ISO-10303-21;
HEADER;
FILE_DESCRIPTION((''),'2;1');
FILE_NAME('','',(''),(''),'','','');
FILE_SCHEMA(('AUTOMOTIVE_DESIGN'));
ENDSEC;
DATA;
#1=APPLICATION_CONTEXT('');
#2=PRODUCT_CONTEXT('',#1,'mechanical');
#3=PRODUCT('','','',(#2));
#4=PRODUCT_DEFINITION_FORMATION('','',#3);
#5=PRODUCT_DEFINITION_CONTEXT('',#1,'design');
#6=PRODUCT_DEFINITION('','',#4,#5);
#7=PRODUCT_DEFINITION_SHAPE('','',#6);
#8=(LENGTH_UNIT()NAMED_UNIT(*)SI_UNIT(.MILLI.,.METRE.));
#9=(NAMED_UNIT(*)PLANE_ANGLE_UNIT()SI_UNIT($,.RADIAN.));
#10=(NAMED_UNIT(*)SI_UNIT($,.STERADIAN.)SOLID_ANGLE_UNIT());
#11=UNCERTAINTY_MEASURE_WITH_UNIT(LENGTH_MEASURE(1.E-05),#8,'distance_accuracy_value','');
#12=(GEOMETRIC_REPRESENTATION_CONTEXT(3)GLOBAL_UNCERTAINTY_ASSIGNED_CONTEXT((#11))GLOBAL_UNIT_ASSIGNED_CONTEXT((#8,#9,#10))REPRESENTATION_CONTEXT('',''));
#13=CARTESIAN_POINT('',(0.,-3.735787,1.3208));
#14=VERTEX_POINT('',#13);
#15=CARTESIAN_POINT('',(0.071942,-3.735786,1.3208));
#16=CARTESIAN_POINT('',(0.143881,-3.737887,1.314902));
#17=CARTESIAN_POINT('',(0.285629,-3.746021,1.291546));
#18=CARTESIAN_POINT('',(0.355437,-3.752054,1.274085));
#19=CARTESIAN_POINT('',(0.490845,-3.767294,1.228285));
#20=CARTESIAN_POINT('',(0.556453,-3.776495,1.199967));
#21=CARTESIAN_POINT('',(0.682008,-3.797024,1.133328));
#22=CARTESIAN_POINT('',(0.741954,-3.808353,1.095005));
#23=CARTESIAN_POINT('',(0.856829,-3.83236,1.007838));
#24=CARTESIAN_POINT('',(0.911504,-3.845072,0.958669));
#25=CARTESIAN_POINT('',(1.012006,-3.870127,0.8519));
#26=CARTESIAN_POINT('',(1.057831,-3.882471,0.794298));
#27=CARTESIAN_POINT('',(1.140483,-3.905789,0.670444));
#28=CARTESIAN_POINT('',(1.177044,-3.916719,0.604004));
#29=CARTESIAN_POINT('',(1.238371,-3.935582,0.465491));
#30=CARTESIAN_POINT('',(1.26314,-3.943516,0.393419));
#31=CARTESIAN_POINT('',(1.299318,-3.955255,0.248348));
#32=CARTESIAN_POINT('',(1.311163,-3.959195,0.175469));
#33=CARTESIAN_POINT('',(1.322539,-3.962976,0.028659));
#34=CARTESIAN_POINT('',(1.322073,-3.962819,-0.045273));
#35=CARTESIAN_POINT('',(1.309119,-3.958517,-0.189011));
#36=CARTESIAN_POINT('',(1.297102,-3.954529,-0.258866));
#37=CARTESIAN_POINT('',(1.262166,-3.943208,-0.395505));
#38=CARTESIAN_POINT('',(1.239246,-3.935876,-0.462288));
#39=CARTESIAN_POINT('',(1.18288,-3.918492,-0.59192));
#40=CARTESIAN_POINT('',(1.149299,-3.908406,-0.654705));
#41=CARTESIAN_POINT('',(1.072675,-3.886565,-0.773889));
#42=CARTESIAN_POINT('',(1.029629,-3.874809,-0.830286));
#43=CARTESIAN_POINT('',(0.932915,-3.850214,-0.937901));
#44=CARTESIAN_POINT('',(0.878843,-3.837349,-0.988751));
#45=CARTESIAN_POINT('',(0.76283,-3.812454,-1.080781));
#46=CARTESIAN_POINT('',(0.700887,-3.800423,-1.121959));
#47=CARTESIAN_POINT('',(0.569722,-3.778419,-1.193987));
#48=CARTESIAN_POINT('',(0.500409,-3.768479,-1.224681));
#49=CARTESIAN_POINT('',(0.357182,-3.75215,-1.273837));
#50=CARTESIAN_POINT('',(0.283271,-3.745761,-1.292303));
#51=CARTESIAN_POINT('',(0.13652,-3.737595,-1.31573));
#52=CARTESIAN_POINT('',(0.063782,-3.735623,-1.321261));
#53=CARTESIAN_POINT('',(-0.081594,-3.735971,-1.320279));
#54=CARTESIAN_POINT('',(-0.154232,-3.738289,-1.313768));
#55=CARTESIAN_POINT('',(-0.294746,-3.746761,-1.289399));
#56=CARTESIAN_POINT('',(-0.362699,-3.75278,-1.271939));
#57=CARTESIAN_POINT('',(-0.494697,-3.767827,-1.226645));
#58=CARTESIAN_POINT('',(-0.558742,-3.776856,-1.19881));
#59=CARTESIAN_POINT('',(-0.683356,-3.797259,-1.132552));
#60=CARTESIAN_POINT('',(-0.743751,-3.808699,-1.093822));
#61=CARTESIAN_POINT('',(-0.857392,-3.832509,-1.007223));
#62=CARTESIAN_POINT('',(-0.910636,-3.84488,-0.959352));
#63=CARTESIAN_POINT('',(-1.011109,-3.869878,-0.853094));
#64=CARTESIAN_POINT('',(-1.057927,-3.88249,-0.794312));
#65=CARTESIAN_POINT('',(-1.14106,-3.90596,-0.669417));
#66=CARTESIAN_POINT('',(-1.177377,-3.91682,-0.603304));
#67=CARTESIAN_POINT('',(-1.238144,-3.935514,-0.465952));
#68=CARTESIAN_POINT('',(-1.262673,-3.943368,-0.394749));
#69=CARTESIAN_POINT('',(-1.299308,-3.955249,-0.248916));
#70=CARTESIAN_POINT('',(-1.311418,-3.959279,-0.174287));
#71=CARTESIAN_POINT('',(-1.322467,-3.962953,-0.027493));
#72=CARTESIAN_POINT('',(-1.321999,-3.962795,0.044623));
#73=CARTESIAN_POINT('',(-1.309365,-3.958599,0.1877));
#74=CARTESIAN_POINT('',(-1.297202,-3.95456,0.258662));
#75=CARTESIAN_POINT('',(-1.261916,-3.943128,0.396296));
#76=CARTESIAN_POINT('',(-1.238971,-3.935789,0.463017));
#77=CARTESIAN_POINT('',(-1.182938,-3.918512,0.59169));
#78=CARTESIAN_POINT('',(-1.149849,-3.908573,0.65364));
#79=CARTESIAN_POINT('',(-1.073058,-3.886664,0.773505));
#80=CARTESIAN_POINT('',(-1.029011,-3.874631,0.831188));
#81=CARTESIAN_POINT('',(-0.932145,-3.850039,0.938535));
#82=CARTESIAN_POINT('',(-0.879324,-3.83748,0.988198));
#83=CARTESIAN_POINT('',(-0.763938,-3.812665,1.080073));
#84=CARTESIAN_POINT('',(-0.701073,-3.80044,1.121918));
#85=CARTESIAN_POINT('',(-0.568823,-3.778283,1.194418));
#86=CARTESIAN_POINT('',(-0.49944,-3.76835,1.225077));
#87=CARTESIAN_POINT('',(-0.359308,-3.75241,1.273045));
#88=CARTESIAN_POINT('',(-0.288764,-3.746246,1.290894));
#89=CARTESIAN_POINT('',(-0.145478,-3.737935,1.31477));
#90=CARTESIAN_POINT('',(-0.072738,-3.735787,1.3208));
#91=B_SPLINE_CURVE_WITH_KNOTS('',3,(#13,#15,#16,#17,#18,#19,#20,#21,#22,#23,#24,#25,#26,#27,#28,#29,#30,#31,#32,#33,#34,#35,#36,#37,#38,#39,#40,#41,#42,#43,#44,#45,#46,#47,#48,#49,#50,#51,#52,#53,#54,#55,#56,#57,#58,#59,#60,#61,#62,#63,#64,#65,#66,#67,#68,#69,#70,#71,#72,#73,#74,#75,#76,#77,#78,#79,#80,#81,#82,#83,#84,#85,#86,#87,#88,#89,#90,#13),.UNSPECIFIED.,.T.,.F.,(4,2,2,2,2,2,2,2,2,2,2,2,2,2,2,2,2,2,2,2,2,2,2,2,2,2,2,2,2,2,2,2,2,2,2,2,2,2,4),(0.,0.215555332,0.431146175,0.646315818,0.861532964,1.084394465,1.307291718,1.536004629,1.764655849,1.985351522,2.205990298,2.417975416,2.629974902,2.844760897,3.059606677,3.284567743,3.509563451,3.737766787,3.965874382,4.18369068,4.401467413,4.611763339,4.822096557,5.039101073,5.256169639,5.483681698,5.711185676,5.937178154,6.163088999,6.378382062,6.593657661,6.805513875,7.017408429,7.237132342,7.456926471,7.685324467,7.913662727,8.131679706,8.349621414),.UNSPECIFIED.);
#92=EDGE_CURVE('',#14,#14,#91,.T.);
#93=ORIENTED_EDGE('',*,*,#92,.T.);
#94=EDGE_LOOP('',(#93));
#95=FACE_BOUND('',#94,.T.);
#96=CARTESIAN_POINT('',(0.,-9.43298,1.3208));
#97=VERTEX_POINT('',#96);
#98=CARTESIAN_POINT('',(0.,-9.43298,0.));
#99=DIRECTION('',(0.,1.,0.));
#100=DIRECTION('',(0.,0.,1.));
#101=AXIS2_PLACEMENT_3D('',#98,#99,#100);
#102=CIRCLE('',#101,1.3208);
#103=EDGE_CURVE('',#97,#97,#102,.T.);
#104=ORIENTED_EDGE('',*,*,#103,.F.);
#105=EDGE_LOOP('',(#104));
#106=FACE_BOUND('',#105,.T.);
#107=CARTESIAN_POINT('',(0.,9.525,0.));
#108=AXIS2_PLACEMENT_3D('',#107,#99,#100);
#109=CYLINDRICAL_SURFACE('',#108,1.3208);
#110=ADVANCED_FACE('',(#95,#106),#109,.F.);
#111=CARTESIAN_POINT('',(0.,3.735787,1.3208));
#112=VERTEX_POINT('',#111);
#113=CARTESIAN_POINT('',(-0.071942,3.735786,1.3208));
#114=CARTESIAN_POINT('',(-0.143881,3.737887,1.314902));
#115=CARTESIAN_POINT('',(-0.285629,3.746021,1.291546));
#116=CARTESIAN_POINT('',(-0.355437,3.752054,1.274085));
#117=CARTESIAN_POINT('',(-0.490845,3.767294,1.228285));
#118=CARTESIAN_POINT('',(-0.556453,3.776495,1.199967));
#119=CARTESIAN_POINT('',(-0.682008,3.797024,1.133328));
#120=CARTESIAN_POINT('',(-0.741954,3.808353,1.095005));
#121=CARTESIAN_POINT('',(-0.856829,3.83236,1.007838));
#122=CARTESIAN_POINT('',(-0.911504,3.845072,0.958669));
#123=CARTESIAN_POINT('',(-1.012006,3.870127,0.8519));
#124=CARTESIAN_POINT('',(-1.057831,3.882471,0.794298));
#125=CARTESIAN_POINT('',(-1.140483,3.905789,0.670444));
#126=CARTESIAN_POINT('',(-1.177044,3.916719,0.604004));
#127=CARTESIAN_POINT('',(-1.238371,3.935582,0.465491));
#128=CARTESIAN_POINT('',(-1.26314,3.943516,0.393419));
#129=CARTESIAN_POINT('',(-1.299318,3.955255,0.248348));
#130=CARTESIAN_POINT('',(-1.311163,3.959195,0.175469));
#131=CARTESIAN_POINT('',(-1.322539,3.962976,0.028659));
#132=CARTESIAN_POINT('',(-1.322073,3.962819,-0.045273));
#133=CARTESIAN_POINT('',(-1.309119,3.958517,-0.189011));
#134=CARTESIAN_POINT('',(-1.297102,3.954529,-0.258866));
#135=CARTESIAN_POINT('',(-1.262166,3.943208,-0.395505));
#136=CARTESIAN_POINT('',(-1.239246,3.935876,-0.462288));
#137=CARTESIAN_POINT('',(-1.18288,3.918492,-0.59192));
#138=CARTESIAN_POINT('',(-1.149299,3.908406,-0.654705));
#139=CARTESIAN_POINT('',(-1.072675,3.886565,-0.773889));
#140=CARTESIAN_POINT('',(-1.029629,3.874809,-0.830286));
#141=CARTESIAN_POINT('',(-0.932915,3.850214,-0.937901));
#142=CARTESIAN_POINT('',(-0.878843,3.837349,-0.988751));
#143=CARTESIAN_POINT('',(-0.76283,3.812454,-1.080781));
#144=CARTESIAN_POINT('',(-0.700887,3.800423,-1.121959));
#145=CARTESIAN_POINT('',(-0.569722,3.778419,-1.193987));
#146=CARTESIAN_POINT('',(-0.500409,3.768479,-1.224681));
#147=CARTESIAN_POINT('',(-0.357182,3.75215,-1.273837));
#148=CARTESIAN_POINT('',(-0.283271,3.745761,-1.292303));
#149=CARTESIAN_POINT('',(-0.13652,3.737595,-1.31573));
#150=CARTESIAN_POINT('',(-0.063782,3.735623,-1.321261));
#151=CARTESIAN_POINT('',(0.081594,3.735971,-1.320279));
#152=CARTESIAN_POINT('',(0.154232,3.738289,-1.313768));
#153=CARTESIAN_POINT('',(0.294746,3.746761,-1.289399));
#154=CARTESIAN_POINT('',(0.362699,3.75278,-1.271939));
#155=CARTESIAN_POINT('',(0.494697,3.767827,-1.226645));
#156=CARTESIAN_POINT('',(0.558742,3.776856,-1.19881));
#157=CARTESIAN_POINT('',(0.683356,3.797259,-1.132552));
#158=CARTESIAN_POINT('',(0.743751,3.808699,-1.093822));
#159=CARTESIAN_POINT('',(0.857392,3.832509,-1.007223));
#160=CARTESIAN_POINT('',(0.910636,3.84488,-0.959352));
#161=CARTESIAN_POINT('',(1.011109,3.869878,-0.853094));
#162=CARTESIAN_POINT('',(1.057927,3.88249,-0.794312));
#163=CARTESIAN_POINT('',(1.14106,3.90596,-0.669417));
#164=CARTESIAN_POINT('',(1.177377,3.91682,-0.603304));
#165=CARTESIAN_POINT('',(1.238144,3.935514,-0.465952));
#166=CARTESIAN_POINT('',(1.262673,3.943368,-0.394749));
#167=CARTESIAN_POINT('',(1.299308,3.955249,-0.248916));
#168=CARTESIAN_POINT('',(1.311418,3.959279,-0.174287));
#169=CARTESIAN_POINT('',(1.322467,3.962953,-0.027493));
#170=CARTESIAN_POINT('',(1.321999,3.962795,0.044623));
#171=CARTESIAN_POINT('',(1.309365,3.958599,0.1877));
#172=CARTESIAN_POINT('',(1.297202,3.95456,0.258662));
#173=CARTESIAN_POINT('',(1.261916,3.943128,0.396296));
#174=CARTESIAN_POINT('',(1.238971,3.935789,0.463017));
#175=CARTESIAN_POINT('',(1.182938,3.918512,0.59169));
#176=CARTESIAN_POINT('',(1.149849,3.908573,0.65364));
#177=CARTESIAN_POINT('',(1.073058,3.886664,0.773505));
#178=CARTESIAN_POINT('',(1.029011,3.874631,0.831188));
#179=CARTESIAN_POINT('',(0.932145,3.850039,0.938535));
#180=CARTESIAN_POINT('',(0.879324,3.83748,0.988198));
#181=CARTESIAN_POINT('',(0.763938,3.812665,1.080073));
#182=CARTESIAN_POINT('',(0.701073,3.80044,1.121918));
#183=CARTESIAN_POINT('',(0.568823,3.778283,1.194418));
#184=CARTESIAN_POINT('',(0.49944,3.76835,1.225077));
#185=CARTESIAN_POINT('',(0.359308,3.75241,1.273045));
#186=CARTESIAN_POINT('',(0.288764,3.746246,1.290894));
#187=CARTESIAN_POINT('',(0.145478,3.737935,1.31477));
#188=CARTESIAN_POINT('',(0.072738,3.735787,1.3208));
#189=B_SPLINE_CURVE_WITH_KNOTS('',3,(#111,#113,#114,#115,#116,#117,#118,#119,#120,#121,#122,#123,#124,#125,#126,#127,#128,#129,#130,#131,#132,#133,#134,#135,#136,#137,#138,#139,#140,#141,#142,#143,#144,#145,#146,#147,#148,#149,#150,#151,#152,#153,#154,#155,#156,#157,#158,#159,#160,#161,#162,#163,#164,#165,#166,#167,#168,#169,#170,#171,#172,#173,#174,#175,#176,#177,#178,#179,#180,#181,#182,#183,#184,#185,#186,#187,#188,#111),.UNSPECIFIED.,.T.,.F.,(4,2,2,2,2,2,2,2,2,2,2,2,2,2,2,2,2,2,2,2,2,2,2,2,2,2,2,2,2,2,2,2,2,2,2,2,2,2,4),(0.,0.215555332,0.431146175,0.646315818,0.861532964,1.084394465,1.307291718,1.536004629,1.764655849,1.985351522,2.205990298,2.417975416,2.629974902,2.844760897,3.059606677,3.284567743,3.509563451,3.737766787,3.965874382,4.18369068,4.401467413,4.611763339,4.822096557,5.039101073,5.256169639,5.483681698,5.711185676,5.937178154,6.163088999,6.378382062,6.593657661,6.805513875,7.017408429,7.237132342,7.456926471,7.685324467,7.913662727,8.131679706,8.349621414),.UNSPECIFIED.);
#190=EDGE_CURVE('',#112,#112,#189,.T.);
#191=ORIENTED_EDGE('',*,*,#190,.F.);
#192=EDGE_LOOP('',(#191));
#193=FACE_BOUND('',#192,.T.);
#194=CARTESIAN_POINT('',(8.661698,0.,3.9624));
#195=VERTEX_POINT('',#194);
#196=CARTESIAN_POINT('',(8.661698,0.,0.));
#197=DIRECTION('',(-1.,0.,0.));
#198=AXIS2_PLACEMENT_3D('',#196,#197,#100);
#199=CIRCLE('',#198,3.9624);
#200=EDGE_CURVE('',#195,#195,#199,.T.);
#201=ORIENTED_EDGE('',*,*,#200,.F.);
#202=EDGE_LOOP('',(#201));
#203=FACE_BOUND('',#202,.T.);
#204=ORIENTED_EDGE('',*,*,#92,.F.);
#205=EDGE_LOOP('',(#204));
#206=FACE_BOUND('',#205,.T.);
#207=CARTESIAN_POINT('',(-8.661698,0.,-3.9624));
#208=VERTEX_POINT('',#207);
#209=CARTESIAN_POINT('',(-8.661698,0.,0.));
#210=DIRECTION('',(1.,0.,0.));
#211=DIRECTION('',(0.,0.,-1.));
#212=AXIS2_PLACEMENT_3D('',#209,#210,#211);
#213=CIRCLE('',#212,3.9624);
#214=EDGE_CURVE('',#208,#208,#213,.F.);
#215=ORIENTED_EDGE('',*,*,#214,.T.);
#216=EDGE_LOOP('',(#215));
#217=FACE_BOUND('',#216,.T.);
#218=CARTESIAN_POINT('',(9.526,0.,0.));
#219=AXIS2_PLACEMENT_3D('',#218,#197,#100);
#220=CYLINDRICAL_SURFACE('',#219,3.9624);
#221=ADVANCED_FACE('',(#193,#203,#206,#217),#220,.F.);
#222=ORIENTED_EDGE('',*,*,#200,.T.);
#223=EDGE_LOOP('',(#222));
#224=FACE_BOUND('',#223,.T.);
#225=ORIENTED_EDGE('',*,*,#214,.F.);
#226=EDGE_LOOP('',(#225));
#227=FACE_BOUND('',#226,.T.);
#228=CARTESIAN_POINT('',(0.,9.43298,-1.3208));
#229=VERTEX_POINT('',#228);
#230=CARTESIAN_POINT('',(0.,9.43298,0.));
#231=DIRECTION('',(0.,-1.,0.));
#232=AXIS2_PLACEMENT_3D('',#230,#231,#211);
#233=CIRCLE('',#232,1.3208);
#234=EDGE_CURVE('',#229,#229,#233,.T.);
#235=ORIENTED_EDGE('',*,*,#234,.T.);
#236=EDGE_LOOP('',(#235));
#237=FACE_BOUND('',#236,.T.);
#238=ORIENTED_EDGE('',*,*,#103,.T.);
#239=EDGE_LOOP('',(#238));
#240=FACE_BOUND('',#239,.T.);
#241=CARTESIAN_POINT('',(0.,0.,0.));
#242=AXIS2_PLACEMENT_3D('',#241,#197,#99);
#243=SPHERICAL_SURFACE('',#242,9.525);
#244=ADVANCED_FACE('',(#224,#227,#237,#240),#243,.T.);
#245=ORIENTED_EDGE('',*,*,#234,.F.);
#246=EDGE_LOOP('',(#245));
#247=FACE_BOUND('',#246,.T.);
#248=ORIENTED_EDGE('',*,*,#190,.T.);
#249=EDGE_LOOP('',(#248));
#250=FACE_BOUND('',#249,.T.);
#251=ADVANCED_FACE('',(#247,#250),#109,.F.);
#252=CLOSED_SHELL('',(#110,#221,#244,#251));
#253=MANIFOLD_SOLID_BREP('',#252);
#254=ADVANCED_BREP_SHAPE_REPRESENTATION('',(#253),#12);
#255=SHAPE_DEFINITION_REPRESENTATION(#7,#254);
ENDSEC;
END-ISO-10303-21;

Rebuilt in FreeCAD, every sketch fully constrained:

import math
import FreeCAD as App
import Part
import Sketcher
Q = App.Units.Quantity

doc = App.newDocument("Part")
body = doc.addObject("PartDesign::Body", "Body")

sketch1 = doc.addObject("Sketcher::SketchObject", "Sketch")
body.addObject(sketch1)
sketch1.AttachmentSupport = (doc.XY_Plane, [""])
sketch1.MapMode = "FlatFace"
sketch1.addGeometry([
    Part.LineSegment(App.Vector(-10, 0, 0), App.Vector(10, 0, 0)),
    Part.ArcOfCircle(Part.Circle(App.Vector(0, 0, 0), App.Vector(0, 0, 1), 10), math.radians(0), math.radians(180)),
], False)
sketch1.addConstraint([
    Sketcher.Constraint("Coincident", 0, 1, 1, 2),
    Sketcher.Constraint("Coincident", 1, 1, 0, 2),
    Sketcher.Constraint("Horizontal", 0),
    Sketcher.Constraint("Coincident", 1, 3, -1, 1),
    Sketcher.Constraint("PointOnObject", 0, 1, -1),
    Sketcher.Constraint("Radius", 1, Q("0.375 in")),
])
revolution = doc.addObject("PartDesign::Revolution", "Revolution")
body.addObject(revolution)
revolution.Profile = sketch1
revolution.ReferenceAxis = (sketch1, ["H_Axis"])
revolution.Angle = 360

sketch2 = doc.addObject("Sketcher::SketchObject", "Sketch001")
body.addObject(sketch2)
sketch2.AttachmentSupport = (doc.YZ_Plane, [""])
sketch2.MapMode = "FlatFace"
sketch2.addGeometry(Part.Circle(App.Vector(0, 0, 0), App.Vector(0, 0, 1), 4), False)
sketch2.addConstraint([
    Sketcher.Constraint("Coincident", 0, 3, -1, 1),
    Sketcher.Constraint("Diameter", 0, Q("0.312 in")),
])
pocket1 = doc.addObject("PartDesign::Pocket", "Pocket")
body.addObject(pocket1)
pocket1.Profile = sketch2
pocket1.Length = Q("0.375 in")

sketch3 = doc.addObject("Sketcher::SketchObject", "Sketch002")
body.addObject(sketch3)
sketch3.AttachmentSupport = (doc.YZ_Plane, [""])
sketch3.MapMode = "FlatFace"
sketch3.addGeometry(Part.Circle(App.Vector(0, 0, 0), App.Vector(0, 0, 1), 4), False)
sketch3.addConstraint([
    Sketcher.Constraint("Coincident", 0, 3, -1, 1),
    Sketcher.Constraint("Diameter", 0, Q("0.312 in")),
])
pocket2 = doc.addObject("PartDesign::Pocket", "Pocket001")
body.addObject(pocket2)
pocket2.Profile = sketch3
pocket2.Type = "UpToFirst"
pocket2.Reversed = True

sketch4 = doc.addObject("Sketcher::SketchObject", "Sketch003")
body.addObject(sketch4)
sketch4.AttachmentSupport = (doc.XZ_Plane, [""])
sketch4.MapMode = "FlatFace"
sketch4.AttachmentOffset = App.Placement(App.Vector(0, 0, -0.375 * 25.4), App.Rotation())
sketch4.addGeometry(Part.Circle(App.Vector(0, 0, 0), App.Vector(0, 0, 1), 1.3), False)
sketch4.addConstraint([
    Sketcher.Constraint("Coincident", 0, 3, -1, 1),
    Sketcher.Constraint("Diameter", 0, Q("0.104 in")),
])
doc.recompute()
hole = doc.addObject("PartDesign::Hole", "Hole")
body.addObject(hole)
hole.Profile = sketch4
hole.ThreadType = "None"
hole.Diameter = Q("0.104 in")
hole.DepthType = "ThroughAll"
hole.Reversed = True

doc.recompute()
